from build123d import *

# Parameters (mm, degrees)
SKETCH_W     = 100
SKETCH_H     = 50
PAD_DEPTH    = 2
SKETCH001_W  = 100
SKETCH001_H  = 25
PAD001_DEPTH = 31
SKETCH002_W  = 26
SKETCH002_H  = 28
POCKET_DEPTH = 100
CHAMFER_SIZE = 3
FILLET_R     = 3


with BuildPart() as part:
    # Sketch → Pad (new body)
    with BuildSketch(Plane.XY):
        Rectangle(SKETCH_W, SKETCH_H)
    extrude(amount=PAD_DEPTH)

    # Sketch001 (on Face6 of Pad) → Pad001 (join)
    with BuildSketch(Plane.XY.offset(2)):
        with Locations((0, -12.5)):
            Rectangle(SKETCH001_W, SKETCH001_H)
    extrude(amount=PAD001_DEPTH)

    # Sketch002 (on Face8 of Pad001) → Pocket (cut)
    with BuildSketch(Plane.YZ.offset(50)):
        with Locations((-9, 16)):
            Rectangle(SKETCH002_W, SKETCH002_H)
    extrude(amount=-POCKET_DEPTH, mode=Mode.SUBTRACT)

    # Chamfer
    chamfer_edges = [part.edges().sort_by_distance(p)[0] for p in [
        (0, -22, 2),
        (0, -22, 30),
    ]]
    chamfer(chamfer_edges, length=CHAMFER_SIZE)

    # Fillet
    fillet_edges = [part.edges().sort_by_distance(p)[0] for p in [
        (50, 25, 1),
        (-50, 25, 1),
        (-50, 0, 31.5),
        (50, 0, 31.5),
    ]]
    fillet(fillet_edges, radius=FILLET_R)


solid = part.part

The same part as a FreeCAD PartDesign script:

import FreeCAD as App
import Part
import Sketcher
from FreeCAD import Vector


def edges_at(feature, points):
    """Names of the edges that pass closest to the given points."""
    edges = feature.Shape.Edges
    near = lambda p: min(range(len(edges)), key=lambda i: edges[i].distToShape(Part.Vertex(*p))[0])
    return sorted({f"Edge{near(p) + 1}" for p in points})


def add_polygon(sketch, points):
    """Adds a closed chain of lines whose ends are joined by coincident constraints."""
    first, n = sketch.GeometryCount, len(points)
    for a, b in zip(points, points[1:] + points[:1]):
        sketch.addGeometry(Part.LineSegment(App.Vector(*a, 0), App.Vector(*b, 0)), False)
    for i in range(n):
        sketch.addConstraint(Sketcher.Constraint("Coincident", first + i, 2, first + (i + 1) % n, 1))

doc = App.newDocument("Part")
params = doc.addObject("Spreadsheet::Sheet", "Params")
for row, (alias, value) in enumerate([
    ("sketch1_width", "100 mm"),
    ("sketch1_height", "50 mm"),
    ("pad1_length", "2 mm"),
    ("sketch2_width", "100 mm"),
    ("sketch2_height", "25 mm"),
    ("pad2_length", "31 mm"),
    ("sketch3_width", "26 mm"),
    ("sketch3_height", "28 mm"),
    ("pocket1_length", "100 mm"),
    ("chamfer_size", "3 mm"),
    ("fillet_radius", "3 mm"),
], start=1):
    params.set(f"A{row}", alias)
    params.set(f"B{row}", "=" + value)
    params.setAlias(f"B{row}", alias)

body = doc.addObject("PartDesign::Body", "Body")

sketch1 = body.newObject("Sketcher::SketchObject", "Sketch")
sketch1.AttachmentSupport = (doc.getObject("XY_Plane"), [""])
sketch1.MapMode = "FlatFace"
add_polygon(sketch1, [(-50, 25), (-50, -25), (50, -25), (50, 25)])
sketch1.addConstraint([
    Sketcher.Constraint("Vertical", 0),
    Sketcher.Constraint("Horizontal", 1),
    Sketcher.Constraint("Vertical", 2),
    Sketcher.Constraint("Horizontal", 3),
    Sketcher.Constraint("Symmetric", 0, 2, 2, 2, -1, 1),
    Sketcher.Constraint("DistanceX", 1, 1, 1, 2, 100.0),
    Sketcher.Constraint("DistanceY", 0, 2, 0, 1, 50.0),
])
sketch1.setExpression("Constraints[9]", "Params.sketch1_width")
sketch1.setExpression("Constraints[10]", "Params.sketch1_height")
pad1 = body.newObject("PartDesign::Pad", "Pad")
pad1.Profile = sketch1
pad1.setExpression("Length", "Params.pad1_length")

sketch2 = body.newObject("Sketcher::SketchObject", "Sketch001")
sketch2.AttachmentSupport = (doc.getObject("XY_Plane"), [""])
sketch2.MapMode = "FlatFace"
sketch2.AttachmentOffset = App.Placement(Vector(0, 0, 2), App.Rotation())
add_polygon(sketch2, [(-50, 0), (-50, -25), (50, -25), (50, 0)])
sketch2.addConstraint([
    Sketcher.Constraint("Vertical", 0),
    Sketcher.Constraint("Horizontal", 1),
    Sketcher.Constraint("Vertical", 2),
    Sketcher.Constraint("Horizontal", 3),
    Sketcher.Constraint("Symmetric", 2, 2, 3, 2, -1, 1),
    Sketcher.Constraint("DistanceX", 1, 1, 1, 2, 100.0),
    Sketcher.Constraint("DistanceY", 0, 2, 0, 1, 25.0),
])
sketch2.setExpression("Constraints[9]", "Params.sketch2_width")
sketch2.setExpression("Constraints[10]", "Params.sketch2_height")
pad2 = body.newObject("PartDesign::Pad", "Pad001")
pad2.Profile = sketch2
pad2.setExpression("Length", "Params.pad2_length")

sketch3 = body.newObject("Sketcher::SketchObject", "Sketch002")
sketch3.AttachmentSupport = (doc.getObject("YZ_Plane"), [""])
sketch3.MapMode = "FlatFace"
sketch3.AttachmentOffset = App.Placement(Vector(0, 0, 50), App.Rotation())
add_polygon(sketch3, [(-22, 30), (-22, 2), (4, 2), (4, 30)])
sketch3.addConstraint([
    Sketcher.Constraint("Vertical", 0),
    Sketcher.Constraint("Horizontal", 1),
    Sketcher.Constraint("Vertical", 2),
    Sketcher.Constraint("Horizontal", 3),
    Sketcher.Constraint("DistanceX", 1, 1, 1, 2, 26.0),
    Sketcher.Constraint("DistanceY", 0, 2, 0, 1, 28.0),
    Sketcher.Constraint("DistanceX", 0, 2, -1, 1, 22.0),
    Sketcher.Constraint("DistanceY", -1, 1, 0, 2, 2.0),
])
sketch3.setExpression("Constraints[8]", "Params.sketch3_width")
sketch3.setExpression("Constraints[9]", "Params.sketch3_height")
pocket1 = body.newObject("PartDesign::Pocket", "Pocket")
pocket1.Profile = sketch3
pocket1.setExpression("Length", "Params.pocket1_length")
doc.recompute()

chamfer = body.newObject("PartDesign::Chamfer", "Chamfer")
chamfer.Base = (pocket1, edges_at(pocket1, [(0, -22, 2), (0, -22, 30)]))
chamfer.setExpression("Size", "Params.chamfer_size")
doc.recompute()

fillet = body.newObject("PartDesign::Fillet", "Fillet")
fillet.Base = (chamfer, edges_at(chamfer, [
    (50, 25, 1),
    (-50, 25, 1),
    (-50, 0, 31.5),
    (50, 0, 31.5),
]))
fillet.setExpression("Radius", "Params.fillet_radius")

doc.recompute()
